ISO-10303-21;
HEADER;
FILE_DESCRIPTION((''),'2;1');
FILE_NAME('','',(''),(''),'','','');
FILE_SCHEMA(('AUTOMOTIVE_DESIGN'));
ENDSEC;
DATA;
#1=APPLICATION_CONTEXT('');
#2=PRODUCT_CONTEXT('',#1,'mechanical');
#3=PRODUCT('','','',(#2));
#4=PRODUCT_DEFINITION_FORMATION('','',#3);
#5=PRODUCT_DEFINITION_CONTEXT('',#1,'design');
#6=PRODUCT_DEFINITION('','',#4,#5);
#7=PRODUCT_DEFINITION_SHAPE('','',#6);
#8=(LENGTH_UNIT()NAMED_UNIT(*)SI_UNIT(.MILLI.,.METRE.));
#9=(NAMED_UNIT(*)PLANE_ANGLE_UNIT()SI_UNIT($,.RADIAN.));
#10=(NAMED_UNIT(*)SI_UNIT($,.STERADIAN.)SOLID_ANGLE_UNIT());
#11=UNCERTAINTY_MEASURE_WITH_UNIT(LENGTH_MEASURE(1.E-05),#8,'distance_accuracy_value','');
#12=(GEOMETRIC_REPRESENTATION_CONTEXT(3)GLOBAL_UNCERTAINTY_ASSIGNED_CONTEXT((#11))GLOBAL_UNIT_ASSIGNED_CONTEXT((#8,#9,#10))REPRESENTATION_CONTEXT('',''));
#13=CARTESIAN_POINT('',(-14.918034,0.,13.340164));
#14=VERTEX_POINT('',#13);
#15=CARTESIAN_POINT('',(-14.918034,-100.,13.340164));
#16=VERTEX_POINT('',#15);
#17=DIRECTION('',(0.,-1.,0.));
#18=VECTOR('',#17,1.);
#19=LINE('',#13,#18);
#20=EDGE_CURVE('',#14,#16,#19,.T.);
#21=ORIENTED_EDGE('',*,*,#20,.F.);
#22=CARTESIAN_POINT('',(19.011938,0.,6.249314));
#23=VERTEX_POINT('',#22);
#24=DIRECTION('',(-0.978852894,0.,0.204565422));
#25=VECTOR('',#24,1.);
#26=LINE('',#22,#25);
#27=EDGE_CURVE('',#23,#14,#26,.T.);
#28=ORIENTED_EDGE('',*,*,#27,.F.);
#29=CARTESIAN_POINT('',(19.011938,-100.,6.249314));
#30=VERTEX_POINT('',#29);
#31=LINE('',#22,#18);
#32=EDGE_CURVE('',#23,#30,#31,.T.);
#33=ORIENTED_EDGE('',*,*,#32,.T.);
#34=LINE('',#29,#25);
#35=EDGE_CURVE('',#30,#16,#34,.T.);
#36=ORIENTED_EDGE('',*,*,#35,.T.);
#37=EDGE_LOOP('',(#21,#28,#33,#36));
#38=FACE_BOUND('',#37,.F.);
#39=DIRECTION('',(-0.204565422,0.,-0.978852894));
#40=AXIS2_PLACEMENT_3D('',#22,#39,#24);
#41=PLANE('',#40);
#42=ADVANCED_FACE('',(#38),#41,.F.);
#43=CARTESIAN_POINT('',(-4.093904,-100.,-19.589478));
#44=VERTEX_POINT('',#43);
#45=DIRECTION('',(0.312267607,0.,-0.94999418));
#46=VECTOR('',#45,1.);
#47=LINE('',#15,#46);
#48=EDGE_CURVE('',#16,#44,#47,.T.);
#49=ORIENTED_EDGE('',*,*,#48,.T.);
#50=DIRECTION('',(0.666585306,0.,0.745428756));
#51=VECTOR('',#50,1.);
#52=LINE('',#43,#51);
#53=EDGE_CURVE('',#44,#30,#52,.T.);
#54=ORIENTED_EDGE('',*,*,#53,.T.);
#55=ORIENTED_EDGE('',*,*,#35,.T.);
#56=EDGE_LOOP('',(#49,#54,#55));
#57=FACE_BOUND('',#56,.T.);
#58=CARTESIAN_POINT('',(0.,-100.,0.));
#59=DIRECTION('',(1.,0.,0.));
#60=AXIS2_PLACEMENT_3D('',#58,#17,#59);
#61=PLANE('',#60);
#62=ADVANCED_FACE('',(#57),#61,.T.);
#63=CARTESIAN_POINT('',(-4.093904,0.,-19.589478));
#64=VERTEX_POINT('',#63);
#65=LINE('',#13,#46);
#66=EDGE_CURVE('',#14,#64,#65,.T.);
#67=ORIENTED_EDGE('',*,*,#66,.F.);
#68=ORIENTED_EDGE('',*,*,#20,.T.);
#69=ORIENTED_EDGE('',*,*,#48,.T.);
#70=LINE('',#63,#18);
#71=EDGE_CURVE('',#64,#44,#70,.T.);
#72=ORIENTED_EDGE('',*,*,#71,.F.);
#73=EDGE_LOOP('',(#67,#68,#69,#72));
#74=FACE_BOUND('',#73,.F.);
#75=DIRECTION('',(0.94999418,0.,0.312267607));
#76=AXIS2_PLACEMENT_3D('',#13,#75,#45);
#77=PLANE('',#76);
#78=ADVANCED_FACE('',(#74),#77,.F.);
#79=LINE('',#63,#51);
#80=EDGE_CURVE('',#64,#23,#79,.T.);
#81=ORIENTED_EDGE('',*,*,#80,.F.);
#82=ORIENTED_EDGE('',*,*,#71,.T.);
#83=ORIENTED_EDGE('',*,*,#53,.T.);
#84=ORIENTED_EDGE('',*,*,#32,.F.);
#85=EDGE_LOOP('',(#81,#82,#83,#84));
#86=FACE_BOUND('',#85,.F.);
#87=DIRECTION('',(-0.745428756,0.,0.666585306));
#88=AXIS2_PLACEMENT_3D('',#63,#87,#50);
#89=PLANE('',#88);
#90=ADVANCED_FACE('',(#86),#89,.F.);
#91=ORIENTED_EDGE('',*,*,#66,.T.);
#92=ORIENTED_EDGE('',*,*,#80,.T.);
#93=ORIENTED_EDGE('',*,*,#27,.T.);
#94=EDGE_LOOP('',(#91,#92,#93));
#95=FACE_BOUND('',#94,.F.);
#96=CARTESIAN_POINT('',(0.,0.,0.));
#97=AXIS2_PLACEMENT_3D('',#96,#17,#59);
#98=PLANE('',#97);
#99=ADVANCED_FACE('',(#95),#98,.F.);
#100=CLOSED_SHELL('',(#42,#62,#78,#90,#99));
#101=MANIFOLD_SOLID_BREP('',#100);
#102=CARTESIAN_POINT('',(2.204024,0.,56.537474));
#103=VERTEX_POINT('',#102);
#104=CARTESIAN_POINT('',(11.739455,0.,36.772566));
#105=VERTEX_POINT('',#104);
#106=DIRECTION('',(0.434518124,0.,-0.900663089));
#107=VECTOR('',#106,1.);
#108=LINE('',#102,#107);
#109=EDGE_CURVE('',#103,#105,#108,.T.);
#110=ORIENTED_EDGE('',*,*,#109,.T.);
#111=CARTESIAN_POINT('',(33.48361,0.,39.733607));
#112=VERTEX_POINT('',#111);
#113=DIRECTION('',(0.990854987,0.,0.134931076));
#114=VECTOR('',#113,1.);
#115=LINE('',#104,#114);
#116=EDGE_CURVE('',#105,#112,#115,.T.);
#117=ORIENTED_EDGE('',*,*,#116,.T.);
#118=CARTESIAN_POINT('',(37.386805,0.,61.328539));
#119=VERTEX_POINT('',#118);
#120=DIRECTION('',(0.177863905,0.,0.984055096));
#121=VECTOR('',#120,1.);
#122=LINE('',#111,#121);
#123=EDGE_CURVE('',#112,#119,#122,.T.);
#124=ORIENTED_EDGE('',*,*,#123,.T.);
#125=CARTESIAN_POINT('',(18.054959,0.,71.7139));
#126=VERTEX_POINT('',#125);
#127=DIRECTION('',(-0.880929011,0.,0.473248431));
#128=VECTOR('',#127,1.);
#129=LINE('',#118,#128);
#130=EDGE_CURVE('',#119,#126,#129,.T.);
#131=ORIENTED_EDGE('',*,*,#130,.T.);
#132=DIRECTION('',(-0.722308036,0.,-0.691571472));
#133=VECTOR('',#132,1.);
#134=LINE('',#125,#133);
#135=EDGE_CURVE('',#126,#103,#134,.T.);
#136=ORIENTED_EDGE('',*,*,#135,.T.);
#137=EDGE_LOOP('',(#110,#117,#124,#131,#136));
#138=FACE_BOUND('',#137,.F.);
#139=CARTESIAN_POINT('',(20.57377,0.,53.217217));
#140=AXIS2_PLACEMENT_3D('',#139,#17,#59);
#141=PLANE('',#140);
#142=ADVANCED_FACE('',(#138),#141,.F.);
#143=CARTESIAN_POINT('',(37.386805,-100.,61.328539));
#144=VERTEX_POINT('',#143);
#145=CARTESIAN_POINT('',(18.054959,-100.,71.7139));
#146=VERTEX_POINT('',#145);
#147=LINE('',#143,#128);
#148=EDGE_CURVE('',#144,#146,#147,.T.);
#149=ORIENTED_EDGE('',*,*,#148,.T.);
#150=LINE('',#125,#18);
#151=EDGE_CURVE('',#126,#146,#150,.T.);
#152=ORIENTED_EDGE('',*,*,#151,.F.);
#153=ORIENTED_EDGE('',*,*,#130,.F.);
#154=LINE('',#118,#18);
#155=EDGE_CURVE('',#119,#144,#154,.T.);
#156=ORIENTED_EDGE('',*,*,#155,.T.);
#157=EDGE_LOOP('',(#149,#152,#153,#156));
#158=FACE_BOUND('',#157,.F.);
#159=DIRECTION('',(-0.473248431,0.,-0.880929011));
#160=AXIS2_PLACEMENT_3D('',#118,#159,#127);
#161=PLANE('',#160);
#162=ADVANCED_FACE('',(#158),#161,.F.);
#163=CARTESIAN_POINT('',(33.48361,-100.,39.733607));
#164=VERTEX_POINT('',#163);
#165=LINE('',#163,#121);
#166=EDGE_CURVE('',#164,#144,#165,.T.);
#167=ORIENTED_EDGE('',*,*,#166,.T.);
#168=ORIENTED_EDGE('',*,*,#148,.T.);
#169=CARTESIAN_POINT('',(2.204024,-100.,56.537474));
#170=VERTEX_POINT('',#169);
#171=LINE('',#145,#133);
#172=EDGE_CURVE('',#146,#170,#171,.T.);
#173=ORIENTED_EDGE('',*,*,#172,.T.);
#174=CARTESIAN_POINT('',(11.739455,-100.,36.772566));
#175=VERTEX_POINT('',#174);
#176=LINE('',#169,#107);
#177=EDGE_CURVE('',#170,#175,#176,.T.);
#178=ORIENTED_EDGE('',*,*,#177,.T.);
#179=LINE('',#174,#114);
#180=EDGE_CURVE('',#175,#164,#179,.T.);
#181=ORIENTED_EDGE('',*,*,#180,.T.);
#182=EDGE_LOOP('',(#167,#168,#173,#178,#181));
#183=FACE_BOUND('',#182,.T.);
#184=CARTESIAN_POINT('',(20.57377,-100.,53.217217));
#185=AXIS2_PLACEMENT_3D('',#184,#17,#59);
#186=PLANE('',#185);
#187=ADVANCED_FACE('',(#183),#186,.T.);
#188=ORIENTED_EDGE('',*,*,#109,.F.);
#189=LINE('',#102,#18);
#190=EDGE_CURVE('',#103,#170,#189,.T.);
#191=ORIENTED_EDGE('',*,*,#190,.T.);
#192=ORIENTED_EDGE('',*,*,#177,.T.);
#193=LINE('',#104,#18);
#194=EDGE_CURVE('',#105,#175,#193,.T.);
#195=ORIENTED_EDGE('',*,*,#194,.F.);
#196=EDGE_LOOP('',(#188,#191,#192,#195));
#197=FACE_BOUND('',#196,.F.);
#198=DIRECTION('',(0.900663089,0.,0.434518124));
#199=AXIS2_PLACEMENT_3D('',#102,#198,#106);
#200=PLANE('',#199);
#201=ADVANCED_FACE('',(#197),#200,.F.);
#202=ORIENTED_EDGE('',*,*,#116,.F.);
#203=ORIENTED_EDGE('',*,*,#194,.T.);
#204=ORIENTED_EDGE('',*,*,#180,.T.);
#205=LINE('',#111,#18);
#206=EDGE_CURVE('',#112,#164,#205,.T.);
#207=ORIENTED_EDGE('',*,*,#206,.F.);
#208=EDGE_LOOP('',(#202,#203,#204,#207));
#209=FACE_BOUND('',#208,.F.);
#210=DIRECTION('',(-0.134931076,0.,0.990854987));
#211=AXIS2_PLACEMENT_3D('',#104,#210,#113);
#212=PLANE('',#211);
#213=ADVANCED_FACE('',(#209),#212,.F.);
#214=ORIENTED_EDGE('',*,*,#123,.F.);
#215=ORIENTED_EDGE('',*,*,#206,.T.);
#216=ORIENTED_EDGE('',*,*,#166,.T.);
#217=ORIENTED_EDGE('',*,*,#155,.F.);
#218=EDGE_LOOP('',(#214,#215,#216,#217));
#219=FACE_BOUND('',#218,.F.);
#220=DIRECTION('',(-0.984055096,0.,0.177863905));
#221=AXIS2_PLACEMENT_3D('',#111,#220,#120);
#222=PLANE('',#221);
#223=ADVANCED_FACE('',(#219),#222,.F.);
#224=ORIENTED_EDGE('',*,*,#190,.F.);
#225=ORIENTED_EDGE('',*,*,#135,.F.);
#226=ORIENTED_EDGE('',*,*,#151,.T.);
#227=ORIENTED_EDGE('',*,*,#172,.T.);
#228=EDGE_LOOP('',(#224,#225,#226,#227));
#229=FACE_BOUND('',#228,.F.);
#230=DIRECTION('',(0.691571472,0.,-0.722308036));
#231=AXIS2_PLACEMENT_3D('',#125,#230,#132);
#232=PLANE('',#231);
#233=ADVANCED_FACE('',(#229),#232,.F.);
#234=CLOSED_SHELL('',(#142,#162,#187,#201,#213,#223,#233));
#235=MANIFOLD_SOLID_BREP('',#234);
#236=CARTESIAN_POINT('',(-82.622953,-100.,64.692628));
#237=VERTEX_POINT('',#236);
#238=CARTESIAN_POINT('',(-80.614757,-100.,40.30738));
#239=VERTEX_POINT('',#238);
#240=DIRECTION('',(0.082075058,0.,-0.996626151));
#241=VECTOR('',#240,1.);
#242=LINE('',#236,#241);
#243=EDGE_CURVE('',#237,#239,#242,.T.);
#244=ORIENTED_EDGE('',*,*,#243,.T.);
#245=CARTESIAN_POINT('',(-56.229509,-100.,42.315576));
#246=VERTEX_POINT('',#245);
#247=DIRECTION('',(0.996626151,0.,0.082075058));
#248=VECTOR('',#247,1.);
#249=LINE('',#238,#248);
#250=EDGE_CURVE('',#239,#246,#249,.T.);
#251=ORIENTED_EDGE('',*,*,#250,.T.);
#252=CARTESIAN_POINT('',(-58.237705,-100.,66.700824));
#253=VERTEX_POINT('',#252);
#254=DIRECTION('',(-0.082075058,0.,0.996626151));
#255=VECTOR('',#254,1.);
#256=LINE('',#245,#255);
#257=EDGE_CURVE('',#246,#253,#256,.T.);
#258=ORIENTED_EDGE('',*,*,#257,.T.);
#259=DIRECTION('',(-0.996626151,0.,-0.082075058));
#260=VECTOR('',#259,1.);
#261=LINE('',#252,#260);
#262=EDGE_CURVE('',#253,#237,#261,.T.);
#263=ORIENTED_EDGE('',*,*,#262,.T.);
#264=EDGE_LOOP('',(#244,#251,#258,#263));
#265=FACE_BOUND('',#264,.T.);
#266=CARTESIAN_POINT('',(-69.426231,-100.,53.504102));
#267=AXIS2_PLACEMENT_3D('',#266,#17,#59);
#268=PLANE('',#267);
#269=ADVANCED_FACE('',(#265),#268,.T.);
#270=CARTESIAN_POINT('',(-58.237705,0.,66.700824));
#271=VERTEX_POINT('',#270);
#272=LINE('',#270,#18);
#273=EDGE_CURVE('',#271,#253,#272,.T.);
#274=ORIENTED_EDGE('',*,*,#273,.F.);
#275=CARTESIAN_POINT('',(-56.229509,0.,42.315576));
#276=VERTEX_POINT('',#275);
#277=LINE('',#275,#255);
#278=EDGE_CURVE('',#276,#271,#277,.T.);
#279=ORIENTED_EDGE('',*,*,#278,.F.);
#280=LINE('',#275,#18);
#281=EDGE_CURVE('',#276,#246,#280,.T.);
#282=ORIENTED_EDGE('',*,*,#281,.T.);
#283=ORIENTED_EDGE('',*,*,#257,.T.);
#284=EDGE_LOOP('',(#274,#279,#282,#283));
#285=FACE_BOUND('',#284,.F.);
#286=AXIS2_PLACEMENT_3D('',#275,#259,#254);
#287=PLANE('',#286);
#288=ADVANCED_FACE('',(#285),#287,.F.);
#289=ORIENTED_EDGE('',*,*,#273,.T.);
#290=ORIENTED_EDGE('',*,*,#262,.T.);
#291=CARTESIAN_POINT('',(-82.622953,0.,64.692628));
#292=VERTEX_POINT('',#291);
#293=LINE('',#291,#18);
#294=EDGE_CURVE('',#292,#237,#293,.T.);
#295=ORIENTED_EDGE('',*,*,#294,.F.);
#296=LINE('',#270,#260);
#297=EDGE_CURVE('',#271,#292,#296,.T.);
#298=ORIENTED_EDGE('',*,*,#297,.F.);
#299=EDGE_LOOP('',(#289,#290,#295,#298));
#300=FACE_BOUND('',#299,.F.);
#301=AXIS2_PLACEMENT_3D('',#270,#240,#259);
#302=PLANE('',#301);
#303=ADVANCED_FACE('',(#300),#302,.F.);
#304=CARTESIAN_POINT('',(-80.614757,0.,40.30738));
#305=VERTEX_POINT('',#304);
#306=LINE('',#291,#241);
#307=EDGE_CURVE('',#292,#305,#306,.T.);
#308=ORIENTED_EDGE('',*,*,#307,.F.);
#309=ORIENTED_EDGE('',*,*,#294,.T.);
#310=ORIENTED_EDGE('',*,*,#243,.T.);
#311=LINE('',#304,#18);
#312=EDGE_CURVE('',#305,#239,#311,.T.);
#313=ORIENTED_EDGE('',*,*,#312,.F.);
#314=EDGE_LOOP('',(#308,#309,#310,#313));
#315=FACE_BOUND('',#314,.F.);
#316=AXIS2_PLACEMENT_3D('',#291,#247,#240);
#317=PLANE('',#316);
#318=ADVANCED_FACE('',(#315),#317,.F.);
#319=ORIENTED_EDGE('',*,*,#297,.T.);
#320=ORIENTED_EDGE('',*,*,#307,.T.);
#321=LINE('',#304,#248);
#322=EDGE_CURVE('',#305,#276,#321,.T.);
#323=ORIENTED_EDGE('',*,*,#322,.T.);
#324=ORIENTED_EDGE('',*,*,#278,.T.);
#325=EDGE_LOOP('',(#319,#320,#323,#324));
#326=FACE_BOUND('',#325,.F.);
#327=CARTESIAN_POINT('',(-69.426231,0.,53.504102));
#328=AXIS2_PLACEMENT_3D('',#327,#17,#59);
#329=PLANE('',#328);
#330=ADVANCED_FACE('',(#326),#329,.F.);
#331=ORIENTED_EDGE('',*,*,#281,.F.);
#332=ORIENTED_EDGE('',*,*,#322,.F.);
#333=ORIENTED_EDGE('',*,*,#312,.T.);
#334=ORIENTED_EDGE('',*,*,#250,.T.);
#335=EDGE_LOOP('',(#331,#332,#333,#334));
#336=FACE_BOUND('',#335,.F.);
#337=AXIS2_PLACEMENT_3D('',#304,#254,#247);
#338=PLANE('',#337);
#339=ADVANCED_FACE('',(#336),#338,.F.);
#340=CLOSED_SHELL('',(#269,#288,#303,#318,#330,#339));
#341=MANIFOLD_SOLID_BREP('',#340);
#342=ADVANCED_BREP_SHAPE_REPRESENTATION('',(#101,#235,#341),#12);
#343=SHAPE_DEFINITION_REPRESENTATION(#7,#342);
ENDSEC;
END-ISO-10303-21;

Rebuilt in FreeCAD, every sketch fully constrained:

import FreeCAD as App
import Part
import Sketcher
from FreeCAD import Vector


def add_polygon(sketch, points):
    """Adds a closed chain of lines whose ends are joined by coincident constraints."""
    first, n = sketch.GeometryCount, len(points)
    for a, b in zip(points, points[1:] + points[:1]):
        sketch.addGeometry(Part.LineSegment(App.Vector(*a, 0), App.Vector(*b, 0)), False)
    for i in range(n):
        sketch.addConstraint(Sketcher.Constraint("Coincident", first + i, 2, first + (i + 1) % n, 1))

doc = App.newDocument("Part")
body = doc.addObject("PartDesign::Body", "Body")

# Sketch on XZ plane
sketch1 = body.newObject("Sketcher::SketchObject", "Sketch")
sketch1.AttachmentSupport = (doc.getObject("XZ_Plane"), [""])
sketch1.MapMode = "FlatFace"
add_polygon(sketch1, [(19, 6), (-15, 13), (-4, -20)])  # lines 0-2
sketch1.addConstraint([
    Sketcher.Constraint("Equal", 0, 1),
    Sketcher.Constraint("Equal", 1, 2),
    Sketcher.Constraint("DistanceY", 1, 2, -1, 1, 19.589478),
    Sketcher.Constraint("DistanceX", -1, 1, 2, 2, 19.011938),
    Sketcher.Constraint("DistanceX", 0, 2, 1, 2, 10.82413),
    Sketcher.Constraint("DistanceY", 1, 2, 2, 2, 25.838792),
])
pad1 = body.newObject("PartDesign::Pad", "Pad")
pad1.Profile = sketch1
pad1.Length = 100
body2 = doc.addObject("PartDesign::Body", "Body001")

# Sketch on XZ plane
sketch2 = body2.newObject("Sketcher::SketchObject", "Sketch001")
sketch2.AttachmentSupport = (doc.getObject("XZ_Plane001"), [""])
sketch2.MapMode = "FlatFace"
add_polygon(sketch2, [(-81, 40), (-56, 42), (-58, 67), (-83, 65)])  # lines 0-3
sketch2.addConstraint([
    Sketcher.Constraint("Perpendicular", 0, 1),
    Sketcher.Constraint("Perpendicular", 1, 2),
    Sketcher.Constraint("Perpendicular", 2, 3),
    Sketcher.Constraint("Equal", 0, 1),
    Sketcher.Constraint("Distance", 0, 24.467799),
    Sketcher.Constraint("DistanceX", 0, 2, -1, 1, 56.229509),
    Sketcher.Constraint("DistanceY", -1, 1, 2, 2, 64.692628),
    Sketcher.Constraint("DistanceY", -1, 1, 3, 2, 40.30738),
])
pad2 = body2.newObject("PartDesign::Pad", "Pad001")
pad2.Profile = sketch2
pad2.Length = 100
body3 = doc.addObject("PartDesign::Body", "Body002")

# Sketch on XZ plane
sketch3 = body3.newObject("Sketcher::SketchObject", "Sketch002")
sketch3.AttachmentSupport = (doc.getObject("XZ_Plane002"), [""])
sketch3.MapMode = "FlatFace"
add_polygon(sketch3, [(12, 37), (33, 40), (37, 61), (18, 72), (2, 57)])  # lines 0-4
sketch3.addConstraint([
    Sketcher.Constraint("Equal", 0, 1),
    Sketcher.Constraint("Equal", 1, 2),
    Sketcher.Constraint("Equal", 2, 3),
    Sketcher.Constraint("Equal", 3, 4),
    Sketcher.Constraint("DistanceY", -1, 1, 2, 2, 71.7139),
    Sketcher.Constraint("Distance", 0, 21.944841),
    Sketcher.Constraint("DistanceX", -1, 1, 0, 2, 33.48361),
    Sketcher.Constraint("DistanceY", -1, 1, 1, 2, 61.328539),
    Sketcher.Constraint("DistanceX", -1, 1, 2, 2, 18.054959),
    Sketcher.Constraint("DistanceX", 3, 2, 1, 2, 35.182781),
])
pad3 = body3.newObject("PartDesign::Pad", "Pad002")
pad3.Profile = sketch3
pad3.Length = 100

doc.recompute()
